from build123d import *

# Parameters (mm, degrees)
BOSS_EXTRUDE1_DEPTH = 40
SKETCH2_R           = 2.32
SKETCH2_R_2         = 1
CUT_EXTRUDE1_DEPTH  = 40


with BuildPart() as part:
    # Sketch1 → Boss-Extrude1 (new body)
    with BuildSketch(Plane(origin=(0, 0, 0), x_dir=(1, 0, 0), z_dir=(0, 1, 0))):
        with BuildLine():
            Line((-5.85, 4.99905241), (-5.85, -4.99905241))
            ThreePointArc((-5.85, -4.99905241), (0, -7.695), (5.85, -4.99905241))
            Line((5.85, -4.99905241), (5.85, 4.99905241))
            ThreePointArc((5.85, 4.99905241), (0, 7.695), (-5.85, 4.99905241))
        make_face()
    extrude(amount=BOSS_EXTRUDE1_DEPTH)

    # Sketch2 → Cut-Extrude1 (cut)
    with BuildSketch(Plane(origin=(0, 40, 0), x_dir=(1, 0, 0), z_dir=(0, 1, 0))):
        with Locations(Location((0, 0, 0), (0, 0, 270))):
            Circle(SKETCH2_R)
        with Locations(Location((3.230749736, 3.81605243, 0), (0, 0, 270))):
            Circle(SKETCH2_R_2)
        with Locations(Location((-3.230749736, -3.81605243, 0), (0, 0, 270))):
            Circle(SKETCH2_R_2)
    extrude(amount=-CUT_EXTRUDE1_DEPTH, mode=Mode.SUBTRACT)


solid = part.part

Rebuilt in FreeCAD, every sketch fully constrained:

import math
import FreeCAD as App
import Part
import Sketcher

V = App.Vector
Q = App.Units.Quantity

doc = App.newDocument("Part")
params = doc.addObject("Spreadsheet::Sheet", "Params")
for row, (alias, value) in enumerate([
    ("pad1_length", "40 mm"),
    ("sketch2_diameter", "2 mm"),
    ("sketch2_diameter2", "4.64 mm"),
    ("pocket1_length", "40 mm"),
], start=1):
    params.set(f"A{row}", alias)
    params.set(f"B{row}", "=" + value)
    params.setAlias(f"B{row}", alias)

body = doc.addObject("PartDesign::Body", "Body")

sketch1 = body.newObject("Sketcher::SketchObject", "Sketch")
sketch1.AttachmentSupport = (doc.getObject("XZ_Plane"), [""])
sketch1.MapMode = "FlatFace"
sketch1.addGeometry(Part.LineSegment(V(-6, -5, 0), V(-6, 5, 0)), False)
sketch1.addGeometry(Part.ArcOfCircle(Part.Circle(V(0, 0, 0), V(0, 0, 1), 8), math.radians(41), math.radians(139)), False)
sketch1.addGeometry(Part.LineSegment(V(6, 5, 0), V(6, -5, 0)), False)
sketch1.addGeometry(Part.ArcOfCircle(Part.Circle(V(0, 0, 0), V(0, 0, 1), 8), math.radians(-139), math.radians(-41)), False)
sketch1.addConstraint(Sketcher.Constraint("Coincident", 0, 2, 1, 2))
sketch1.addConstraint(Sketcher.Constraint("Coincident", 1, 1, 2, 1))
sketch1.addConstraint(Sketcher.Constraint("Coincident", 2, 2, 3, 2))
sketch1.addConstraint(Sketcher.Constraint("Coincident", 3, 1, 0, 1))
sketch1.addConstraint(Sketcher.Constraint("Vertical", 0))
sketch1.addConstraint(Sketcher.Constraint("Vertical", 2))
sketch1.addConstraint(Sketcher.Constraint("Coincident", 1, 3, -1, 1))
sketch1.addConstraint(Sketcher.Constraint("Coincident", 3, 3, -1, 1))
sketch1.addConstraint(Sketcher.Constraint("Equal", 1, 3))
sketch1.addConstraint(Sketcher.Constraint("Horizontal", 0, 2, 1, 1))
sketch1.addConstraint(Sketcher.Constraint("Radius", 1, Q("7.695 mm")))
sketch1.addConstraint(Sketcher.Constraint("DistanceX", 0, 2, 1, 1, Q("11.7 mm")))
pad1 = body.newObject("PartDesign::Pad", "Pad")
pad1.Profile = sketch1
pad1.setExpression("Length", "Params.pad1_length")
pad1.Reversed = True

sketch2 = body.newObject("Sketcher::SketchObject", "Sketch001")
sketch2.AttachmentSupport = (doc.getObject("XZ_Plane"), [""])
sketch2.MapMode = "FlatFace"
sketch2.AttachmentOffset = App.Placement(V(0, 0, -40), App.Rotation())
sketch2.addGeometry(Part.Circle(V(0, 0, 0), V(0, 0, 1), 2.3), False)
sketch2.addGeometry(Part.Circle(V(3.2, -3.8, 0), V(0, 0, 1), 1), False)
sketch2.addGeometry(Part.Circle(V(-3.2, 3.8, 0), V(0, 0, 1), 1), False)
sketch2.addConstraint(Sketcher.Constraint("Coincident", 0, 3, -1, 1))
sketch2.addConstraint(Sketcher.Constraint("Equal", 1, 2))
sketch2.addConstraint(Sketcher.Constraint("Symmetric", 1, 3, 2, 3, -1, 1))
sketch2.addConstraint(Sketcher.Constraint("Diameter", 1, Q("2 mm")))
sketch2.addConstraint(Sketcher.Constraint("Diameter", 0, Q("4.64 mm")))
sketch2.addConstraint(Sketcher.Constraint("DistanceX", 2, 3, 1, 3, Q("6.461499 mm")))
sketch2.addConstraint(Sketcher.Constraint("DistanceY", 1, 3, -1, 1, Q("3.816052 mm")))
sketch2.setExpression("Constraints[3]", "Params.sketch2_diameter")
sketch2.setExpression("Constraints[4]", "Params.sketch2_diameter2")
pocket1 = body.newObject("PartDesign::Pocket", "Pocket")
pocket1.Profile = sketch2
pocket1.setExpression("Length", "Params.pocket1_length")
pocket1.Reversed = True

doc.recompute()
